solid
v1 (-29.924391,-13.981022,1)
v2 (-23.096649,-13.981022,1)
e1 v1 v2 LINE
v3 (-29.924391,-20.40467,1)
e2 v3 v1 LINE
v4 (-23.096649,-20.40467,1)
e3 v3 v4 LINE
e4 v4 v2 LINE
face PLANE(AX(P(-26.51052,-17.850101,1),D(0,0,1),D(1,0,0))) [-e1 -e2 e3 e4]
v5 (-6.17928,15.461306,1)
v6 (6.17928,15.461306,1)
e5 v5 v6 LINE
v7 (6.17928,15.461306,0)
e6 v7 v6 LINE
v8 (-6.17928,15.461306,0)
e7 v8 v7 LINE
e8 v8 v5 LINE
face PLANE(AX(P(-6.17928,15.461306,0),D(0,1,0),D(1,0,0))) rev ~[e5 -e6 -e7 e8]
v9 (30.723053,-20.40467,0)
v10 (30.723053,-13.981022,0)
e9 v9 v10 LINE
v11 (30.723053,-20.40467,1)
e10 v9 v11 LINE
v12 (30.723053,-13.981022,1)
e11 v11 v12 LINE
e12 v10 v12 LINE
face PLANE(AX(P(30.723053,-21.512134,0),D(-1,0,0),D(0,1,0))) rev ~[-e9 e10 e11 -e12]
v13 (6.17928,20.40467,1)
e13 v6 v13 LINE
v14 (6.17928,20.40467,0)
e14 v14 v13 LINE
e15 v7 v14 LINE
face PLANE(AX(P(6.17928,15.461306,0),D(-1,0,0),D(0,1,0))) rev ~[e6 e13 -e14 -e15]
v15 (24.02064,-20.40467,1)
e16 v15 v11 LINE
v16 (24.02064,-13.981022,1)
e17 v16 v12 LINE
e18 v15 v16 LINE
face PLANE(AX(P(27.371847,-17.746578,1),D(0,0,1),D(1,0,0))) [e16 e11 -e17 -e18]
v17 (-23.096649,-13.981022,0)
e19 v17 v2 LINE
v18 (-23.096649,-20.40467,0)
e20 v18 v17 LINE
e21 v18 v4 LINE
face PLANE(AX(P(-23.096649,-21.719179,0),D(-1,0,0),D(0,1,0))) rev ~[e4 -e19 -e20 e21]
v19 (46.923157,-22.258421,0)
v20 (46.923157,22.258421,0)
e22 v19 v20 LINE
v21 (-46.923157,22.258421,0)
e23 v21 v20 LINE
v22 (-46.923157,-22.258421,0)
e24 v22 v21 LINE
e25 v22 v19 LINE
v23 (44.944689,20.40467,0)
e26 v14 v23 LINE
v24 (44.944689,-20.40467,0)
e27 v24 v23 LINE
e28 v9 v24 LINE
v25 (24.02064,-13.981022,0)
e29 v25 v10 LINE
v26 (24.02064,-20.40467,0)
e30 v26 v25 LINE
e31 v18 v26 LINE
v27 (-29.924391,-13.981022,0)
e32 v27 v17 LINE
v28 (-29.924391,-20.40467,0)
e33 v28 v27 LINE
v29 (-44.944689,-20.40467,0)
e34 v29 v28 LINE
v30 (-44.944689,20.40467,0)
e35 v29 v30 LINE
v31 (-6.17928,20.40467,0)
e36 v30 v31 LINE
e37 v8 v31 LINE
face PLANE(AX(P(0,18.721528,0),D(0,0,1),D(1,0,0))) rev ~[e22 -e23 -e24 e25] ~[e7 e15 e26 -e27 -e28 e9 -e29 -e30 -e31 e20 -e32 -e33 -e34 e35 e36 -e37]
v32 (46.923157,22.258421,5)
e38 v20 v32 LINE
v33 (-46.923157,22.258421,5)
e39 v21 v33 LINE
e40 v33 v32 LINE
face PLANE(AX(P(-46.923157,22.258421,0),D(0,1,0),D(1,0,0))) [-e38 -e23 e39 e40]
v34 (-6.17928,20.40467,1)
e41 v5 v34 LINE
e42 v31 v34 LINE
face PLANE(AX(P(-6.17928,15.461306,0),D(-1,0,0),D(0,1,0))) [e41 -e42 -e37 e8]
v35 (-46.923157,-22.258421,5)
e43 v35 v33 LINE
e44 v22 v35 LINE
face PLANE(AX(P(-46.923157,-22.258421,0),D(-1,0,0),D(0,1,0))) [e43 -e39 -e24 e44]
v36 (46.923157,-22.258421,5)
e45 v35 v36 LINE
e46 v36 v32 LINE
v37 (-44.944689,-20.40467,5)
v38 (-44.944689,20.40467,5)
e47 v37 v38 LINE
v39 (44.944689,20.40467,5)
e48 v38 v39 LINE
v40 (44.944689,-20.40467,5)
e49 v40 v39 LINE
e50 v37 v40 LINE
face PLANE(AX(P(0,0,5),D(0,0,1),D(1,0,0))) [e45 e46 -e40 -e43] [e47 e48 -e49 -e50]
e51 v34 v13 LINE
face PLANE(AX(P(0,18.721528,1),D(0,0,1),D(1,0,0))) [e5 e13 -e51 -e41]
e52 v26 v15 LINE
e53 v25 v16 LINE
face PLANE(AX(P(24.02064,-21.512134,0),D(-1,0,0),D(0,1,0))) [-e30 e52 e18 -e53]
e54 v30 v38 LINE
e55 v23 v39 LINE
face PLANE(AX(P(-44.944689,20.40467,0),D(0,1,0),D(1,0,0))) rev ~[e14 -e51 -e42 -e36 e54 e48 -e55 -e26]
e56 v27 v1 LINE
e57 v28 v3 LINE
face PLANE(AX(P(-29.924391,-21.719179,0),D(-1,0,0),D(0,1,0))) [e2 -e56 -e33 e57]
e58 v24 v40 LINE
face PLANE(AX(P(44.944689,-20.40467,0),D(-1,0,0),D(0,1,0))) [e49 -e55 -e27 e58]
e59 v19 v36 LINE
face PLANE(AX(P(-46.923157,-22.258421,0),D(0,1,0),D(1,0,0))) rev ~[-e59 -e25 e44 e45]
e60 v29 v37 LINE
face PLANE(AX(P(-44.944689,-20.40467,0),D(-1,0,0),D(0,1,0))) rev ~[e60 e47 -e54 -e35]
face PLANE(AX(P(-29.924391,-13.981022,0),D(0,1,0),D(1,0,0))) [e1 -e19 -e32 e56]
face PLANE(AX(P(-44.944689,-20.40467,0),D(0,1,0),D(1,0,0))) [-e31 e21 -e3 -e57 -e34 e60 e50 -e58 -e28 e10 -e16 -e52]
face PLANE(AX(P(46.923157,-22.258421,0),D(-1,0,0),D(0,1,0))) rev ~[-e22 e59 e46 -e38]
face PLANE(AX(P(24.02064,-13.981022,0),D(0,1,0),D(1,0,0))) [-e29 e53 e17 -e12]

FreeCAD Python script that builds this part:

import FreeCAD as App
import Part
import Sketcher
Q = App.Units.Quantity

doc = App.newDocument("Part")
body = doc.addObject("PartDesign::Body", "Body")

# Sketch on XY plane
sketch1 = doc.addObject("Sketcher::SketchObject", "Sketch")
body.addObject(sketch1)
sketch1.AttachmentSupport = (doc.XY_Plane, [""])
sketch1.MapMode = "FlatFace"
sketch1.addGeometry([
    Part.LineSegment(App.Vector(-47, 22, 0), App.Vector(-47, -22, 0)),  # 0
    Part.LineSegment(App.Vector(-47, -22, 0), App.Vector(47, -22, 0)),  # 1
    Part.LineSegment(App.Vector(47, -22, 0), App.Vector(47, 22, 0)),  # 2
    Part.LineSegment(App.Vector(47, 22, 0), App.Vector(-47, 22, 0)),  # 3
    Part.LineSegment(App.Vector(45, -20, 0), App.Vector(-45, -20, 0)),  # 4
    Part.LineSegment(App.Vector(-45, -20, 0), App.Vector(-45, 20, 0)),  # 5
    Part.LineSegment(App.Vector(-45, 20, 0), App.Vector(45, 20, 0)),  # 6
    Part.LineSegment(App.Vector(45, 20, 0), App.Vector(45, -20, 0)),  # 7
], False)
sketch1.addConstraint([
    Sketcher.Constraint("Coincident", 0, 2, 1, 1),
    Sketcher.Constraint("Coincident", 1, 2, 2, 1),
    Sketcher.Constraint("Coincident", 2, 2, 3, 1),
    Sketcher.Constraint("Coincident", 3, 2, 0, 1),
    Sketcher.Constraint("Coincident", 4, 2, 5, 1),
    Sketcher.Constraint("Coincident", 5, 2, 6, 1),
    Sketcher.Constraint("Coincident", 6, 2, 7, 1),
    Sketcher.Constraint("Coincident", 7, 2, 4, 1),
    Sketcher.Constraint("Vertical", 0),
    Sketcher.Constraint("Horizontal", 1),
    Sketcher.Constraint("Vertical", 2),
    Sketcher.Constraint("Horizontal", 3),
    Sketcher.Constraint("Horizontal", 4),
    Sketcher.Constraint("Vertical", 5),
    Sketcher.Constraint("Horizontal", 6),
    Sketcher.Constraint("Vertical", 7),
    Sketcher.Constraint("Symmetric", 0, 2, 2, 2, -1, 1),
    Sketcher.Constraint("Symmetric", 4, 2, 6, 2, -1, 1),
    Sketcher.Constraint("DistanceY", 0, 2, 0, 1, Q("44.516842 mm")),
    Sketcher.Constraint("DistanceY", 5, 1, 5, 2, Q("40.80934 mm")),
    Sketcher.Constraint("DistanceX", 1, 1, 1, 2, Q("93.846314 mm")),
    Sketcher.Constraint("DistanceX", 4, 2, 4, 1, Q("89.889378 mm")),
])
pad1 = doc.addObject("PartDesign::Pad", "Pad")
body.addObject(pad1)
pad1.Profile = sketch1
pad1.Length = 5

# Sketch on XY plane
sketch2 = doc.addObject("Sketcher::SketchObject", "Sketch001")
body.addObject(sketch2)
sketch2.AttachmentSupport = (doc.XY_Plane, [""])
sketch2.MapMode = "FlatFace"
sketch2.addGeometry([
    Part.LineSegment(App.Vector(-6, 22, 0), App.Vector(-6, 15, 0)),  # 0
    Part.LineSegment(App.Vector(-6, 15, 0), App.Vector(6, 15, 0)),  # 1
    Part.LineSegment(App.Vector(6, 15, 0), App.Vector(6, 22, 0)),  # 2
    Part.LineSegment(App.Vector(6, 22, 0), App.Vector(-6, 22, 0)),  # 3
    Part.LineSegment(App.Vector(-30, -14, 0), App.Vector(-30, -22, 0)),  # 4
    Part.LineSegment(App.Vector(-30, -22, 0), App.Vector(-23, -22, 0)),  # 5
    Part.LineSegment(App.Vector(-23, -22, 0), App.Vector(-23, -14, 0)),  # 6
    Part.LineSegment(App.Vector(-23, -14, 0), App.Vector(-30, -14, 0)),  # 7
    Part.LineSegment(App.Vector(24, -14, 0), App.Vector(24, -22, 0)),  # 8
    Part.LineSegment(App.Vector(24, -22, 0), App.Vector(31, -22, 0)),  # 9
    Part.LineSegment(App.Vector(31, -22, 0), App.Vector(31, -14, 0)),  # 10
    Part.LineSegment(App.Vector(31, -14, 0), App.Vector(24, -14, 0)),  # 11
], False)
sketch2.addConstraint([
    Sketcher.Constraint("Coincident", 0, 2, 1, 1),
    Sketcher.Constraint("Coincident", 1, 2, 2, 1),
    Sketcher.Constraint("Coincident", 2, 2, 3, 1),
    Sketcher.Constraint("Coincident", 3, 2, 0, 1),
    Sketcher.Constraint("Coincident", 4, 2, 5, 1),
    Sketcher.Constraint("Coincident", 5, 2, 6, 1),
    Sketcher.Constraint("Coincident", 6, 2, 7, 1),
    Sketcher.Constraint("Coincident", 7, 2, 4, 1),
    Sketcher.Constraint("Coincident", 8, 2, 9, 1),
    Sketcher.Constraint("Coincident", 9, 2, 10, 1),
    Sketcher.Constraint("Coincident", 10, 2, 11, 1),
    Sketcher.Constraint("Coincident", 11, 2, 8, 1),
    Sketcher.Constraint("Vertical", 0),
    Sketcher.Constraint("Horizontal", 1),
    Sketcher.Constraint("Vertical", 2),
    Sketcher.Constraint("Horizontal", 3),
    Sketcher.Constraint("Vertical", 4),
    Sketcher.Constraint("Horizontal", 5),
    Sketcher.Constraint("Vertical", 6),
    Sketcher.Constraint("Horizontal", 7),
    Sketcher.Constraint("Vertical", 8),
    Sketcher.Constraint("Horizontal", 9),
    Sketcher.Constraint("Vertical", 10),
    Sketcher.Constraint("Horizontal", 11),
    Sketcher.Constraint("Horizontal", 7, 2, 10, 2),
    Sketcher.Constraint("DistanceX", 1, 1, 1, 2, Q("12.35856 mm")),
    Sketcher.Constraint("DistanceY", 8, 2, 8, 1, Q("7.531111 mm")),
    Sketcher.Constraint("DistanceX", 5, 1, 5, 2, Q("6.827742 mm")),
    Sketcher.Constraint("DistanceX", 9, 1, 9, 2, Q("6.702413 mm")),
    Sketcher.Constraint("DistanceY", 0, 2, 0, 1, Q("6.520443 mm")),
    Sketcher.Constraint("DistanceY", 4, 2, 4, 1, Q("7.738157 mm")),
    Sketcher.Constraint("DistanceX", 0, 2, -1, 1, Q("6.17928 mm")),
    Sketcher.Constraint("DistanceY", -1, 1, 2, 2, Q("21.981749 mm")),
    Sketcher.Constraint("DistanceX", 4, 2, -1, 1, Q("29.924391 mm")),
    Sketcher.Constraint("DistanceY", 4, 2, -1, 1, Q("21.719179 mm")),
    Sketcher.Constraint("DistanceX", -1, 1, 8, 2, Q("24.02064 mm")),
])
pad2 = doc.addObject("PartDesign::Pad", "Pad001")
body.addObject(pad2)
pad2.Profile = sketch2
pad2.Length = 1

doc.recompute()
